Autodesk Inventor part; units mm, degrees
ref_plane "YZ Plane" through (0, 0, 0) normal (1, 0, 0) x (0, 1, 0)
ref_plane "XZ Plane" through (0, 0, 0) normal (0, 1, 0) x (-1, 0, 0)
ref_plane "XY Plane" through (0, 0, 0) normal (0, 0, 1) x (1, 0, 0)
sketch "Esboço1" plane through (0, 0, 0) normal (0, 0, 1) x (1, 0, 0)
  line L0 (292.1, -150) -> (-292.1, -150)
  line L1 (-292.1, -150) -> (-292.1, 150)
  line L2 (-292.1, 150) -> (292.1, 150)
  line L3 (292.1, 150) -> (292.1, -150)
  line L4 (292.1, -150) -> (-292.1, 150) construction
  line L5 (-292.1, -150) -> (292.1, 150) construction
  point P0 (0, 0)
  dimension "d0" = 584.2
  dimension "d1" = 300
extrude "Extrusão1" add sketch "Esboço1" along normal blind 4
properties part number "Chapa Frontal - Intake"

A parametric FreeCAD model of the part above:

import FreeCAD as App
import Part
import Sketcher
Q = App.Units.Quantity


def add_polygon(sketch, points):
    """Adds a closed chain of lines whose ends are joined by coincident constraints."""
    first, n = sketch.GeometryCount, len(points)
    for a, b in zip(points, points[1:] + points[:1]):
        sketch.addGeometry(Part.LineSegment(App.Vector(*a, 0), App.Vector(*b, 0)), False)
    for i in range(n):
        sketch.addConstraint(Sketcher.Constraint("Coincident", first + i, 2, first + (i + 1) % n, 1))

doc = App.newDocument("Part")
params = doc.addObject("Spreadsheet::Sheet", "Params")
for row, (alias, value) in enumerate([
    ("sketch1_height", "300 mm"),
    ("sketch1_width", "584.2 mm"),
    ("pad1_length", "4 mm"),
], start=1):
    params.set(f"A{row}", alias)
    params.set(f"B{row}", "=" + value)
    params.setAlias(f"B{row}", alias)

body = doc.addObject("PartDesign::Body", "Body")

# Sketch on XY plane
sketch1 = body.newObject("Sketcher::SketchObject", "Sketch")
sketch1.AttachmentSupport = (doc.getObject("XY_Plane"), [""])
sketch1.MapMode = "FlatFace"
add_polygon(sketch1, [(-292, -150), (292, -150), (292, 150), (-292, 150)])  # lines 0-3
sketch1.addConstraint([
    Sketcher.Constraint("Horizontal", 0),
    Sketcher.Constraint("Vertical", 1),
    Sketcher.Constraint("Horizontal", 2),
    Sketcher.Constraint("Vertical", 3),
    Sketcher.Constraint("Symmetric", 0, 2, 2, 2, -1, 1),
    Sketcher.Constraint("DistanceY", 1, 1, 1, 2, Q("300 mm")),
    Sketcher.Constraint("DistanceX", 0, 1, 0, 2, Q("584.2 mm")),
])
sketch1.setExpression("Constraints[9]", "Params.sketch1_height")
sketch1.setExpression("Constraints[10]", "Params.sketch1_width")
pad1 = body.newObject("PartDesign::Pad", "Pad")
pad1.Profile = sketch1
pad1.setExpression("Length", "Params.pad1_length")

doc.recompute()
